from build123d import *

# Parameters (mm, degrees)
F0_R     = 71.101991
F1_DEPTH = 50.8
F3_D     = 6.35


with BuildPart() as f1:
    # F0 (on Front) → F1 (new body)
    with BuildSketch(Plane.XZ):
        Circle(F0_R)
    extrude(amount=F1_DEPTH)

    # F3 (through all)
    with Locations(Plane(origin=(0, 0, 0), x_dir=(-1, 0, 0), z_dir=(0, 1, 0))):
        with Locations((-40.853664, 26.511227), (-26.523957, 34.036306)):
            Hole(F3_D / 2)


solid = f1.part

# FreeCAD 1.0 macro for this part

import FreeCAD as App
import Part
import Sketcher
from FreeCAD import Vector
Q = App.Units.Quantity

doc = App.newDocument("Part")
body = doc.addObject("PartDesign::Body", "Body")

# Sketch on XZ plane
sketch1 = doc.addObject("Sketcher::SketchObject", "Sketch")
body.addObject(sketch1)
sketch1.AttachmentSupport = (doc.XZ_Plane, [""])
sketch1.MapMode = "FlatFace"
sketch1.addGeometry(Part.Circle(Vector(0, 0, 0), Vector(0, 0, 1), 71.101991), False)
sketch1.addConstraint([
    Sketcher.Constraint("Coincident", 0, 3, -1, 1),
    Sketcher.Constraint("Diameter", 0, 142.203982),
])
pad1 = doc.addObject("PartDesign::Pad", "Pad")
body.addObject(pad1)
pad1.Profile = sketch1
pad1.Length = Q("2 in")

# Sketch on XZ plane
sketch2 = doc.addObject("Sketcher::SketchObject", "Sketch001")
body.addObject(sketch2)
sketch2.AttachmentSupport = (doc.XZ_Plane, [""])
sketch2.MapMode = "FlatFace"
sketch2.addGeometry([
    Part.Circle(Vector(40.853664, 26.511227, 0), Vector(0, 0, 1), 3.175),
    Part.Circle(Vector(26.523957, 34.036306, 0), Vector(0, 0, 1), 3.175),
], False)
sketch2.addConstraint([
    Sketcher.Constraint("Equal", 0, 1),
    Sketcher.Constraint("Diameter", 0, Q("0.25 in")),
    Sketcher.Constraint("DistanceY", 0, 3, 1, 3, 7.525079),
    Sketcher.Constraint("DistanceX", -1, 1, 0, 3, 40.853664),
    Sketcher.Constraint("DistanceY", -1, 1, 0, 3, 26.511227),
    Sketcher.Constraint("DistanceX", -1, 1, 1, 3, 26.523957),
])
doc.recompute()
hole = doc.addObject("PartDesign::Hole", "Hole")
body.addObject(hole)
hole.Profile = sketch2
hole.ThreadType = "None"
hole.Diameter = Q("0.25 in")
hole.DepthType = "ThroughAll"
hole.Reversed = True

doc.recompute()
